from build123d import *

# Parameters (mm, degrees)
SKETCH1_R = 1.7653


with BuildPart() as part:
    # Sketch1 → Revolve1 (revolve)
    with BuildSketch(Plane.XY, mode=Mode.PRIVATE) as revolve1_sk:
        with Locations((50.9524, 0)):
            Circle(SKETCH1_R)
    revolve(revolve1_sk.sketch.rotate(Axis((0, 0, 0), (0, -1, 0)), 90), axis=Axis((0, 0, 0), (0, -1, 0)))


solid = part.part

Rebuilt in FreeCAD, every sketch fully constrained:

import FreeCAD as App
import Part
import Sketcher

V = App.Vector
Q = App.Units.Quantity

doc = App.newDocument("Part")
params = doc.addObject("Spreadsheet::Sheet", "Params")
for row, (alias, value) in enumerate([
    ("sketch1_diameter", "0.139 in"),
    ("revolution_angle", "360 deg"),
], start=1):
    params.set(f"A{row}", alias)
    params.set(f"B{row}", "=" + value)
    params.setAlias(f"B{row}", alias)

body = doc.addObject("PartDesign::Body", "Body")

# Sketch on XY plane
sketch1 = doc.addObject("Sketcher::SketchObject", "Sketch")
body.addObject(sketch1)
sketch1.AttachmentSupport = (doc.XY_Plane, [""])
sketch1.MapMode = "FlatFace"
sketch1.addGeometry(Part.Circle(V(51, 0, 0), V(0, 0, 1), 1.8), False)
sketch1.addConstraint(Sketcher.Constraint("PointOnObject", 0, 3, -1))
sketch1.addConstraint(Sketcher.Constraint("Diameter", 0, Q("0.139 in")))
sketch1.addConstraint(Sketcher.Constraint("DistanceX", -1, 1, 0, 3, Q("2.006 in")))
sketch1.setExpression("Constraints[1]", "Params.sketch1_diameter")
revolution = doc.addObject("PartDesign::Revolution", "Revolution")
body.addObject(revolution)
revolution.Profile = sketch1
revolution.ReferenceAxis = (sketch1, ["V_Axis"])
revolution.setExpression("Angle", "Params.revolution_angle")

doc.recompute()
